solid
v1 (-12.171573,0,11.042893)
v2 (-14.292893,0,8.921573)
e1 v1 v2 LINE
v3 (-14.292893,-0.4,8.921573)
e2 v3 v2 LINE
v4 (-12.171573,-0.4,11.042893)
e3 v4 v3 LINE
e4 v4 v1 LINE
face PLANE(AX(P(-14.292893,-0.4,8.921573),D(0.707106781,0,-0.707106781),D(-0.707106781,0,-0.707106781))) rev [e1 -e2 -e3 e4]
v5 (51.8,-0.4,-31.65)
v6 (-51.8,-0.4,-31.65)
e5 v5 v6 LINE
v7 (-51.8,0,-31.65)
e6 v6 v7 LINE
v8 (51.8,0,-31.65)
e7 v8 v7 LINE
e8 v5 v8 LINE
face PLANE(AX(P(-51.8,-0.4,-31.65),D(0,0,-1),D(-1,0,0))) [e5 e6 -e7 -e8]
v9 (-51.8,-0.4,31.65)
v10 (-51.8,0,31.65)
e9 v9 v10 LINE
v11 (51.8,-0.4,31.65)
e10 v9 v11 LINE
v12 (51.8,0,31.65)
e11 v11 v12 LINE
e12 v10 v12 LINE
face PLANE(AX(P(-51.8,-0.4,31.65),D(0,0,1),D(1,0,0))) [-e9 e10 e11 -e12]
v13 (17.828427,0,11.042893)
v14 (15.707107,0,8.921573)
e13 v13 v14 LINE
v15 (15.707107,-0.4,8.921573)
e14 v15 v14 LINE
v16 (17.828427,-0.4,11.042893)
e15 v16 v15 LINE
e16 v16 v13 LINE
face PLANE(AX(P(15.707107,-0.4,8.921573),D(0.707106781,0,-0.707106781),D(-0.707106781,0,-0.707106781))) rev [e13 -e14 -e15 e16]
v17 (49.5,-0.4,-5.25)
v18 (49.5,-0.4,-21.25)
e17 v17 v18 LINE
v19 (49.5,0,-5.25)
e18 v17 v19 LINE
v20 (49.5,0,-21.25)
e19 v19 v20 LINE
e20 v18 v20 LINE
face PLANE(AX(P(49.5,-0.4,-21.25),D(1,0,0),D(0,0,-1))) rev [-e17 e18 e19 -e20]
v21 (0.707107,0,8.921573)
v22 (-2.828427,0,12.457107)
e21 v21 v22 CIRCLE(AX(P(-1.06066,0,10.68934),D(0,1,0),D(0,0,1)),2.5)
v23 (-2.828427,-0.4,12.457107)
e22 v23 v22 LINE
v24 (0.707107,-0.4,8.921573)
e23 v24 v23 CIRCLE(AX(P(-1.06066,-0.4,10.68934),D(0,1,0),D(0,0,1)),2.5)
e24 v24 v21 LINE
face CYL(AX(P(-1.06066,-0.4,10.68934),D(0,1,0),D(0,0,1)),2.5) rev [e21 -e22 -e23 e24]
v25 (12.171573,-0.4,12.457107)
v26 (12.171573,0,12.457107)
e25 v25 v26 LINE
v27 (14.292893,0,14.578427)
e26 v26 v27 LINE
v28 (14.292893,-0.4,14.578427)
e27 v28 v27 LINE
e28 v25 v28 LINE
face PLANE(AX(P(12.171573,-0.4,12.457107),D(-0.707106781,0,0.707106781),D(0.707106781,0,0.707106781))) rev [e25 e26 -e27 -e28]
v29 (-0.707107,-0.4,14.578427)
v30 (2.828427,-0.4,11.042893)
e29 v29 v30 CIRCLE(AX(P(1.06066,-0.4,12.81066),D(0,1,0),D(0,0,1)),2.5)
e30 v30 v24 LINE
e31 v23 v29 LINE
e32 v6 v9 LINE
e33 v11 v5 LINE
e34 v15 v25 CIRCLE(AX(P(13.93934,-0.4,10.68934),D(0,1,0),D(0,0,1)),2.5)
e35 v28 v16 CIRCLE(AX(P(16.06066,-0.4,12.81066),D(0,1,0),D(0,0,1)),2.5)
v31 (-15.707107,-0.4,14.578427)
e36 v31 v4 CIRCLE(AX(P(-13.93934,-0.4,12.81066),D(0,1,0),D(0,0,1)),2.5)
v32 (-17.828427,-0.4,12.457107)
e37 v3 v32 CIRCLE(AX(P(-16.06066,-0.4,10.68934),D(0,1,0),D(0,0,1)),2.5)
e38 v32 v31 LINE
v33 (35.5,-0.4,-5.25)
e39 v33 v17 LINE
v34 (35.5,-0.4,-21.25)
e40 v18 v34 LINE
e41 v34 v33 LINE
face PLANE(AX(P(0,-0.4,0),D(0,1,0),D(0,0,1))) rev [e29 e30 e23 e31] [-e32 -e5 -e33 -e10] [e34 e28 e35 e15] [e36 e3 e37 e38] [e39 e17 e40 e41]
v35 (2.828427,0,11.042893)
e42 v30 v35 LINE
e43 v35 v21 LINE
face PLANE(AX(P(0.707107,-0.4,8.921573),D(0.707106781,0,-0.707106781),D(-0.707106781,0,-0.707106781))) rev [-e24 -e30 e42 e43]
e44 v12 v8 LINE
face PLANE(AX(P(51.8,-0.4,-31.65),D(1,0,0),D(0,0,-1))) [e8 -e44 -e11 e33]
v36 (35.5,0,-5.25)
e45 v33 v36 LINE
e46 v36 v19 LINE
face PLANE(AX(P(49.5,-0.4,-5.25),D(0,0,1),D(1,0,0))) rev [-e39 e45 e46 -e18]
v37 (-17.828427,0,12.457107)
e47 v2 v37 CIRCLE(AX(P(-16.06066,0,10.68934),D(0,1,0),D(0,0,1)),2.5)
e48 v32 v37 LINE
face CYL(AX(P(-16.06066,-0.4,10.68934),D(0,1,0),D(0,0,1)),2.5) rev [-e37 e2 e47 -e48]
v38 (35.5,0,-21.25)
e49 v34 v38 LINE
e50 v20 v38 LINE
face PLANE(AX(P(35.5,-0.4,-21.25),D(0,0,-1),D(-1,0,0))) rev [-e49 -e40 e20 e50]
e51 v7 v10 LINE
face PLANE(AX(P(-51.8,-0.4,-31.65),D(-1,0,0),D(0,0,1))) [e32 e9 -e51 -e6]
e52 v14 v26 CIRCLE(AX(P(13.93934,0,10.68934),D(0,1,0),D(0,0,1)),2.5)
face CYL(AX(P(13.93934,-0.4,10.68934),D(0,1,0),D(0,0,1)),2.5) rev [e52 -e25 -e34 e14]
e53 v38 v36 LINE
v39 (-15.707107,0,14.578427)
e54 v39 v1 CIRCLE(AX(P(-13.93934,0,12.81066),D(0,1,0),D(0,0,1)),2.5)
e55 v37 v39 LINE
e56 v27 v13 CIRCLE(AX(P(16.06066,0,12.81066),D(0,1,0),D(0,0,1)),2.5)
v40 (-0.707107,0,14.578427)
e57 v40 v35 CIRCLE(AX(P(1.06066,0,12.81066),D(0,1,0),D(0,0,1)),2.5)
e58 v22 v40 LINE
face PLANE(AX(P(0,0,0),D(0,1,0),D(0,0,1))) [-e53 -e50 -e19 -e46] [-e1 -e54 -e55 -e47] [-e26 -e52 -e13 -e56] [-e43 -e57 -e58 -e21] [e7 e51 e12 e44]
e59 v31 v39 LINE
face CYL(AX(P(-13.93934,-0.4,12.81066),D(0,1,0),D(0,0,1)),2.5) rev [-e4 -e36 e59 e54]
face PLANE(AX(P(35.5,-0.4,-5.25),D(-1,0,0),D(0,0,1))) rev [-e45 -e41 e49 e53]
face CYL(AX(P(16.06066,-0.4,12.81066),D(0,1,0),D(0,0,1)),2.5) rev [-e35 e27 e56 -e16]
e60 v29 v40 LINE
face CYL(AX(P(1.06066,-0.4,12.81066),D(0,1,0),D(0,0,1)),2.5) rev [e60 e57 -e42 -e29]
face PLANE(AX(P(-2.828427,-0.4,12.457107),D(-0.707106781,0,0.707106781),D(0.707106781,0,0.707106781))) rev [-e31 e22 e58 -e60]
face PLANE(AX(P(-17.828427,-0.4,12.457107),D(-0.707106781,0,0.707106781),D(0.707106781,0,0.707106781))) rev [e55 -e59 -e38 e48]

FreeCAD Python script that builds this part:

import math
import FreeCAD as App
import Part
import Sketcher
from FreeCAD import Vector
Q = App.Units.Quantity


def add_polygon(sketch, points):
    """Adds a closed chain of lines whose ends are joined by coincident constraints."""
    first, n = sketch.GeometryCount, len(points)
    for a, b in zip(points, points[1:] + points[:1]):
        sketch.addGeometry(Part.LineSegment(App.Vector(*a, 0), App.Vector(*b, 0)), False)
    for i in range(n):
        sketch.addConstraint(Sketcher.Constraint("Coincident", first + i, 2, first + (i + 1) % n, 1))

doc = App.newDocument("Part")
body = doc.addObject("PartDesign::Body", "Body")

sketch1 = body.newObject("Sketcher::SketchObject", "Sketch")
sketch1.AttachmentSupport = (doc.getObject("XZ_Plane"), [""])
sketch1.MapMode = "FlatFace"
add_polygon(sketch1, [(-52, -32), (-52, 32), (52, 32), (52, -32)])
sketch1.addConstraint(Sketcher.Constraint("Vertical", 0))
sketch1.addConstraint(Sketcher.Constraint("Horizontal", 1))
sketch1.addConstraint(Sketcher.Constraint("Vertical", 2))
sketch1.addConstraint(Sketcher.Constraint("Horizontal", 3))
sketch1.addConstraint(Sketcher.Constraint("Symmetric", 0, 2, 2, 2, -1, 1))
sketch1.addConstraint(Sketcher.Constraint("DistanceX", 1, 1, 1, 2, Q("103.6 mm")))
sketch1.addConstraint(Sketcher.Constraint("DistanceY", 0, 1, 0, 2, Q("63.3 mm")))
pad1 = body.newObject("PartDesign::Pad", "Pad")
pad1.Profile = sketch1
pad1.Length = 0.4

sketch2 = body.newObject("Sketcher::SketchObject", "Sketch001")
sketch2.AttachmentSupport = (doc.getObject("XZ_Plane"), [""])
sketch2.MapMode = "FlatFace"
add_polygon(sketch2, [(36, -21), (36, -5), (50, -5), (50, -21)])
sketch2.addConstraint(Sketcher.Constraint("Vertical", 0))
sketch2.addConstraint(Sketcher.Constraint("Horizontal", 1))
sketch2.addConstraint(Sketcher.Constraint("Vertical", 2))
sketch2.addConstraint(Sketcher.Constraint("Horizontal", 3))
sketch2.addConstraint(Sketcher.Constraint("DistanceX", 1, 1, 1, 2, Q("14 mm")))
sketch2.addConstraint(Sketcher.Constraint("DistanceY", 0, 1, 0, 2, Q("16 mm")))
sketch2.addConstraint(Sketcher.Constraint("DistanceX", -1, 1, 0, 2, Q("35.5 mm")))
sketch2.addConstraint(Sketcher.Constraint("DistanceY", 0, 2, -1, 1, Q("5.25 mm")))
pocket1 = body.newObject("PartDesign::Pocket", "Pocket")
pocket1.Profile = sketch2
pocket1.Type = "ThroughAll"
pocket1.Reversed = True

sketch3 = body.newObject("Sketcher::SketchObject", "Sketch002")
sketch3.AttachmentSupport = (doc.getObject("XZ_Plane"), [""])
sketch3.MapMode = "FlatFace"
sketch3.addGeometry(Part.LineSegment(Vector(2.8, 11, 0), Vector(0.7, 8.9, 0)), False)
sketch3.addGeometry(Part.ArcOfCircle(Part.Circle(Vector(-1.1, 10.7, 0), Vector(0, 0, 1), 2.5), math.radians(135), math.radians(315)), False)
sketch3.addGeometry(Part.LineSegment(Vector(-2.8, 12.5, 0), Vector(-0.7, 14.6, 0)), False)
sketch3.addGeometry(Part.ArcOfCircle(Part.Circle(Vector(1.1, 12.8, 0), Vector(0, 0, 1), 2.5), math.radians(-45), math.radians(135)), False)
sketch3.addConstraint(Sketcher.Constraint("Tangent", 0, 2, 1, 2))
sketch3.addConstraint(Sketcher.Constraint("Tangent", 1, 1, 2, 1))
sketch3.addConstraint(Sketcher.Constraint("Tangent", 2, 2, 3, 2))
sketch3.addConstraint(Sketcher.Constraint("Tangent", 3, 1, 0, 1))
sketch3.addConstraint(Sketcher.Constraint("Equal", 1, 3))
sketch3.addConstraint(Sketcher.Constraint("Radius", 1, Q("2.5 mm")))
sketch3.addConstraint(Sketcher.Constraint("Angle", 0, Q("-135 deg")))
sketch3.addConstraint(Sketcher.Constraint("Distance", 0, Q("3 mm")))
sketch3.addConstraint(Sketcher.Constraint("DistanceX", 1, 3, -1, 1, Q("1.06066 mm")))
sketch3.addConstraint(Sketcher.Constraint("DistanceY", -1, 1, 1, 3, Q("10.68934 mm")))
pocket2 = body.newObject("PartDesign::Pocket", "Pocket001")
pocket2.Profile = sketch3
pocket2.Type = "ThroughAll"
pocket2.Reversed = True
doc.recompute()

linearpattern = body.newObject("PartDesign::LinearPattern", "LinearPattern")
linearpattern.Originals = [pocket2]
linearpattern.Direction = (doc.getObject("X_Axis"), [""])
linearpattern.Mode = "offset"
linearpattern.Offset = 15
linearpattern.Occurrences = 2
body.Tip = linearpattern
doc.recompute()

linearpattern2 = body.newObject("PartDesign::LinearPattern", "LinearPattern001")
linearpattern2.Originals = [pocket2]
linearpattern2.Direction = (doc.getObject("X_Axis"), [""])
linearpattern2.Mode = "offset"
linearpattern2.Offset = 15
linearpattern2.Occurrences = 2
linearpattern2.Reversed = True
body.Tip = linearpattern2

doc.recompute()
